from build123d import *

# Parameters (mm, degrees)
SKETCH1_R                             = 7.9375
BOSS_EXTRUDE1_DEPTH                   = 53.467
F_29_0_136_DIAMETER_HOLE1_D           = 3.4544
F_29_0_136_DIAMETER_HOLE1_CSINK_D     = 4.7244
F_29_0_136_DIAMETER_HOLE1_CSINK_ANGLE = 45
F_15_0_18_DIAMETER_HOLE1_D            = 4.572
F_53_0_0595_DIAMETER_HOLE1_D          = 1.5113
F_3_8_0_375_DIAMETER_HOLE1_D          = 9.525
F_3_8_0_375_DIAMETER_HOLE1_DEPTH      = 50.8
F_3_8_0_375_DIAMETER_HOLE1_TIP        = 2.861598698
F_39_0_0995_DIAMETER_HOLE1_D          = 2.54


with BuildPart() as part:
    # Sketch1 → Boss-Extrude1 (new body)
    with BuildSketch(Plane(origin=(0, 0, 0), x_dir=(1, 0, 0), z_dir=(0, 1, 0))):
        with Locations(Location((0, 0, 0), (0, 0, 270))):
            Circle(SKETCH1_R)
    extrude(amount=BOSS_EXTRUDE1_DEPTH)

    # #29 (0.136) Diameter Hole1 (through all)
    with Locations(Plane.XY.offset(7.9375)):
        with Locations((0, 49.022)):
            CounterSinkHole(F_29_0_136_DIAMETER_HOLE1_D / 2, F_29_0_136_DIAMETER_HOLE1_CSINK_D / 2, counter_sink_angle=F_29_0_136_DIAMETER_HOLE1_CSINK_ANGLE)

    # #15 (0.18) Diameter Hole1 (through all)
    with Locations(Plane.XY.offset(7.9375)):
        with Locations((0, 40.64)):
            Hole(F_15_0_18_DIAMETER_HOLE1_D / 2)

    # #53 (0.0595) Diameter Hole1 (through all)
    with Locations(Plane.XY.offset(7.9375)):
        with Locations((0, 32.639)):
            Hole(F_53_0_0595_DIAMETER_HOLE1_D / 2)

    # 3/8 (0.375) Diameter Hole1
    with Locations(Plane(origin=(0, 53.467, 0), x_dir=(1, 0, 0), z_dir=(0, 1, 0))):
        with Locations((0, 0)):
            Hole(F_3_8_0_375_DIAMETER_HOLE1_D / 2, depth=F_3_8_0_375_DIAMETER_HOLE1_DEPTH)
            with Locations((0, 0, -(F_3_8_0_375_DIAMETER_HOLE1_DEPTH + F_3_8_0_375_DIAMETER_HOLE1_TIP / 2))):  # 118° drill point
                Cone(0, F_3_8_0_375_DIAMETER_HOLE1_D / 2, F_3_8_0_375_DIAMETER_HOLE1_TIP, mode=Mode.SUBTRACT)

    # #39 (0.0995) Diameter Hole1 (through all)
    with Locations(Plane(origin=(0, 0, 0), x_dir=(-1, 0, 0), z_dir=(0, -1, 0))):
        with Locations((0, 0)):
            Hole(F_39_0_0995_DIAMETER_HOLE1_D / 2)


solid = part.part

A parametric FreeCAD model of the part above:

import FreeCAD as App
import Part
import Sketcher
from FreeCAD import Vector
Q = App.Units.Quantity

doc = App.newDocument("Part")
params = doc.addObject("Spreadsheet::Sheet", "Params")
for row, (alias, value) in enumerate([
    ("sketch1_diameter", "0.625 in"),
    ("pad1_length", "2.105 in"),
    ("sketch2_diameter", "0.136 in"),
    ("hole_diameter", "0.136 in"),
    ("hole_csink_diameter", "0.186 in"),
    ("sketch3_diameter", "0.18 in"),
    ("hole2_diameter", "0.18 in"),
    ("hole3_diameter", "0.0595 in"),
    ("sketch5_diameter", "0.375 in"),
    ("hole4_diameter", "0.375 in"),
    ("hole4_depth", "2 in"),
    ("sketch6_diameter", "0.1 in"),
    ("hole5_diameter", "0.1 in"),
], start=1):
    params.set(f"A{row}", alias)
    params.set(f"B{row}", "=" + value)
    params.setAlias(f"B{row}", alias)

body = doc.addObject("PartDesign::Body", "Body")

sketch1 = body.newObject("Sketcher::SketchObject", "Sketch")
sketch1.AttachmentSupport = (doc.getObject("XZ_Plane"), [""])
sketch1.MapMode = "FlatFace"
sketch1.addGeometry(Part.Circle(Vector(0, 0, 0), Vector(0, 0, 1), 8), False)
sketch1.addConstraint([
    Sketcher.Constraint("Coincident", 0, 3, -1, 1),
    Sketcher.Constraint("Diameter", 0, Q("0.625 in")),
])
sketch1.setExpression("Constraints[1]", "Params.sketch1_diameter")
pad1 = body.newObject("PartDesign::Pad", "Pad")
pad1.Profile = sketch1
pad1.setExpression("Length", "Params.pad1_length")
pad1.Reversed = True

sketch2 = body.newObject("Sketcher::SketchObject", "Sketch001")
sketch2.AttachmentSupport = (doc.getObject("XY_Plane"), [""])
sketch2.MapMode = "FlatFace"
sketch2.AttachmentOffset = App.Placement(Vector(0, 0, 0.3125 * 25.4), App.Rotation())
sketch2.addGeometry(Part.Circle(Vector(0, 49, 0), Vector(0, 0, 1), 1.7), False)
sketch2.addConstraint([
    Sketcher.Constraint("PointOnObject", 0, 3, -2),
    Sketcher.Constraint("Diameter", 0, Q("0.136 in")),
    Sketcher.Constraint("DistanceY", -1, 1, 0, 3, Q("1.93 in")),
])
sketch2.setExpression("Constraints[1]", "Params.sketch2_diameter")
doc.recompute()
hole = body.newObject("PartDesign::Hole", "Hole")
hole.Profile = sketch2
hole.ThreadType = "None"
hole.setExpression("Diameter", "Params.hole_diameter")
hole.DepthType = "ThroughAll"
hole.HoleCutType = "Countersink"
hole.setExpression("HoleCutDiameter", "Params.hole_csink_diameter")
hole.HoleCutCountersinkAngle = 45

sketch3 = body.newObject("Sketcher::SketchObject", "Sketch002")
sketch3.AttachmentSupport = (doc.getObject("XY_Plane"), [""])
sketch3.MapMode = "FlatFace"
sketch3.AttachmentOffset = App.Placement(Vector(0, 0, 0.3125 * 25.4), App.Rotation())
sketch3.addGeometry(Part.Circle(Vector(0, 40.6, 0), Vector(0, 0, 1), 2.3), False)
sketch3.addConstraint([
    Sketcher.Constraint("PointOnObject", 0, 3, -2),
    Sketcher.Constraint("Diameter", 0, Q("0.18 in")),
    Sketcher.Constraint("DistanceY", -1, 1, 0, 3, Q("1.6 in")),
])
sketch3.setExpression("Constraints[1]", "Params.sketch3_diameter")
doc.recompute()
hole2 = body.newObject("PartDesign::Hole", "Hole001")
hole2.Profile = sketch3
hole2.ThreadType = "None"
hole2.setExpression("Diameter", "Params.hole2_diameter")
hole2.DepthType = "ThroughAll"

sketch4 = body.newObject("Sketcher::SketchObject", "Sketch003")
sketch4.AttachmentSupport = (doc.getObject("XY_Plane"), [""])
sketch4.MapMode = "FlatFace"
sketch4.AttachmentOffset = App.Placement(Vector(0, 0, 0.3125 * 25.4), App.Rotation())
sketch4.addGeometry(Part.Circle(Vector(0, 32.6, 0), Vector(0, 0, 1), 0.8), False)
sketch4.addConstraint([
    Sketcher.Constraint("PointOnObject", 0, 3, -2),
    Sketcher.Constraint("Diameter", 0, Q("0.0595 in")),
    Sketcher.Constraint("DistanceY", -1, 1, 0, 3, Q("1.285 in")),
])
doc.recompute()
hole3 = body.newObject("PartDesign::Hole", "Hole002")
hole3.Profile = sketch4
hole3.ThreadType = "None"
hole3.setExpression("Diameter", "Params.hole3_diameter")
hole3.DepthType = "ThroughAll"

sketch5 = body.newObject("Sketcher::SketchObject", "Sketch004")
sketch5.AttachmentSupport = (doc.getObject("XZ_Plane"), [""])
sketch5.MapMode = "FlatFace"
sketch5.AttachmentOffset = App.Placement(Vector(0, 0, -2.105 * 25.4), App.Rotation())
sketch5.addGeometry(Part.Circle(Vector(0, 0, 0), Vector(0, 0, 1), 4.8), False)
sketch5.addConstraint([
    Sketcher.Constraint("Coincident", 0, 3, -1, 1),
    Sketcher.Constraint("Diameter", 0, Q("0.375 in")),
])
sketch5.setExpression("Constraints[1]", "Params.sketch5_diameter")
doc.recompute()
hole4 = body.newObject("PartDesign::Hole", "Hole003")
hole4.Profile = sketch5
hole4.ThreadType = "None"
hole4.setExpression("Diameter", "Params.hole4_diameter")
hole4.DepthType = "Dimension"
hole4.setExpression("Depth", "Params.hole4_depth")
hole4.DrillPoint = "Angled"
hole4.DrillPointAngle = 118
hole4.Reversed = True

sketch6 = body.newObject("Sketcher::SketchObject", "Sketch005")
sketch6.AttachmentSupport = (doc.getObject("XZ_Plane"), [""])
sketch6.MapMode = "FlatFace"
sketch6.addGeometry(Part.Circle(Vector(0, 0, 0), Vector(0, 0, 1), 1.3), False)
sketch6.addConstraint([
    Sketcher.Constraint("Coincident", 0, 3, -1, 1),
    Sketcher.Constraint("Diameter", 0, Q("0.1 in")),
])
sketch6.setExpression("Constraints[1]", "Params.sketch6_diameter")
doc.recompute()
hole5 = body.newObject("PartDesign::Hole", "Hole004")
hole5.Profile = sketch6
hole5.ThreadType = "None"
hole5.setExpression("Diameter", "Params.hole5_diameter")
hole5.DepthType = "ThroughAll"

doc.recompute()
